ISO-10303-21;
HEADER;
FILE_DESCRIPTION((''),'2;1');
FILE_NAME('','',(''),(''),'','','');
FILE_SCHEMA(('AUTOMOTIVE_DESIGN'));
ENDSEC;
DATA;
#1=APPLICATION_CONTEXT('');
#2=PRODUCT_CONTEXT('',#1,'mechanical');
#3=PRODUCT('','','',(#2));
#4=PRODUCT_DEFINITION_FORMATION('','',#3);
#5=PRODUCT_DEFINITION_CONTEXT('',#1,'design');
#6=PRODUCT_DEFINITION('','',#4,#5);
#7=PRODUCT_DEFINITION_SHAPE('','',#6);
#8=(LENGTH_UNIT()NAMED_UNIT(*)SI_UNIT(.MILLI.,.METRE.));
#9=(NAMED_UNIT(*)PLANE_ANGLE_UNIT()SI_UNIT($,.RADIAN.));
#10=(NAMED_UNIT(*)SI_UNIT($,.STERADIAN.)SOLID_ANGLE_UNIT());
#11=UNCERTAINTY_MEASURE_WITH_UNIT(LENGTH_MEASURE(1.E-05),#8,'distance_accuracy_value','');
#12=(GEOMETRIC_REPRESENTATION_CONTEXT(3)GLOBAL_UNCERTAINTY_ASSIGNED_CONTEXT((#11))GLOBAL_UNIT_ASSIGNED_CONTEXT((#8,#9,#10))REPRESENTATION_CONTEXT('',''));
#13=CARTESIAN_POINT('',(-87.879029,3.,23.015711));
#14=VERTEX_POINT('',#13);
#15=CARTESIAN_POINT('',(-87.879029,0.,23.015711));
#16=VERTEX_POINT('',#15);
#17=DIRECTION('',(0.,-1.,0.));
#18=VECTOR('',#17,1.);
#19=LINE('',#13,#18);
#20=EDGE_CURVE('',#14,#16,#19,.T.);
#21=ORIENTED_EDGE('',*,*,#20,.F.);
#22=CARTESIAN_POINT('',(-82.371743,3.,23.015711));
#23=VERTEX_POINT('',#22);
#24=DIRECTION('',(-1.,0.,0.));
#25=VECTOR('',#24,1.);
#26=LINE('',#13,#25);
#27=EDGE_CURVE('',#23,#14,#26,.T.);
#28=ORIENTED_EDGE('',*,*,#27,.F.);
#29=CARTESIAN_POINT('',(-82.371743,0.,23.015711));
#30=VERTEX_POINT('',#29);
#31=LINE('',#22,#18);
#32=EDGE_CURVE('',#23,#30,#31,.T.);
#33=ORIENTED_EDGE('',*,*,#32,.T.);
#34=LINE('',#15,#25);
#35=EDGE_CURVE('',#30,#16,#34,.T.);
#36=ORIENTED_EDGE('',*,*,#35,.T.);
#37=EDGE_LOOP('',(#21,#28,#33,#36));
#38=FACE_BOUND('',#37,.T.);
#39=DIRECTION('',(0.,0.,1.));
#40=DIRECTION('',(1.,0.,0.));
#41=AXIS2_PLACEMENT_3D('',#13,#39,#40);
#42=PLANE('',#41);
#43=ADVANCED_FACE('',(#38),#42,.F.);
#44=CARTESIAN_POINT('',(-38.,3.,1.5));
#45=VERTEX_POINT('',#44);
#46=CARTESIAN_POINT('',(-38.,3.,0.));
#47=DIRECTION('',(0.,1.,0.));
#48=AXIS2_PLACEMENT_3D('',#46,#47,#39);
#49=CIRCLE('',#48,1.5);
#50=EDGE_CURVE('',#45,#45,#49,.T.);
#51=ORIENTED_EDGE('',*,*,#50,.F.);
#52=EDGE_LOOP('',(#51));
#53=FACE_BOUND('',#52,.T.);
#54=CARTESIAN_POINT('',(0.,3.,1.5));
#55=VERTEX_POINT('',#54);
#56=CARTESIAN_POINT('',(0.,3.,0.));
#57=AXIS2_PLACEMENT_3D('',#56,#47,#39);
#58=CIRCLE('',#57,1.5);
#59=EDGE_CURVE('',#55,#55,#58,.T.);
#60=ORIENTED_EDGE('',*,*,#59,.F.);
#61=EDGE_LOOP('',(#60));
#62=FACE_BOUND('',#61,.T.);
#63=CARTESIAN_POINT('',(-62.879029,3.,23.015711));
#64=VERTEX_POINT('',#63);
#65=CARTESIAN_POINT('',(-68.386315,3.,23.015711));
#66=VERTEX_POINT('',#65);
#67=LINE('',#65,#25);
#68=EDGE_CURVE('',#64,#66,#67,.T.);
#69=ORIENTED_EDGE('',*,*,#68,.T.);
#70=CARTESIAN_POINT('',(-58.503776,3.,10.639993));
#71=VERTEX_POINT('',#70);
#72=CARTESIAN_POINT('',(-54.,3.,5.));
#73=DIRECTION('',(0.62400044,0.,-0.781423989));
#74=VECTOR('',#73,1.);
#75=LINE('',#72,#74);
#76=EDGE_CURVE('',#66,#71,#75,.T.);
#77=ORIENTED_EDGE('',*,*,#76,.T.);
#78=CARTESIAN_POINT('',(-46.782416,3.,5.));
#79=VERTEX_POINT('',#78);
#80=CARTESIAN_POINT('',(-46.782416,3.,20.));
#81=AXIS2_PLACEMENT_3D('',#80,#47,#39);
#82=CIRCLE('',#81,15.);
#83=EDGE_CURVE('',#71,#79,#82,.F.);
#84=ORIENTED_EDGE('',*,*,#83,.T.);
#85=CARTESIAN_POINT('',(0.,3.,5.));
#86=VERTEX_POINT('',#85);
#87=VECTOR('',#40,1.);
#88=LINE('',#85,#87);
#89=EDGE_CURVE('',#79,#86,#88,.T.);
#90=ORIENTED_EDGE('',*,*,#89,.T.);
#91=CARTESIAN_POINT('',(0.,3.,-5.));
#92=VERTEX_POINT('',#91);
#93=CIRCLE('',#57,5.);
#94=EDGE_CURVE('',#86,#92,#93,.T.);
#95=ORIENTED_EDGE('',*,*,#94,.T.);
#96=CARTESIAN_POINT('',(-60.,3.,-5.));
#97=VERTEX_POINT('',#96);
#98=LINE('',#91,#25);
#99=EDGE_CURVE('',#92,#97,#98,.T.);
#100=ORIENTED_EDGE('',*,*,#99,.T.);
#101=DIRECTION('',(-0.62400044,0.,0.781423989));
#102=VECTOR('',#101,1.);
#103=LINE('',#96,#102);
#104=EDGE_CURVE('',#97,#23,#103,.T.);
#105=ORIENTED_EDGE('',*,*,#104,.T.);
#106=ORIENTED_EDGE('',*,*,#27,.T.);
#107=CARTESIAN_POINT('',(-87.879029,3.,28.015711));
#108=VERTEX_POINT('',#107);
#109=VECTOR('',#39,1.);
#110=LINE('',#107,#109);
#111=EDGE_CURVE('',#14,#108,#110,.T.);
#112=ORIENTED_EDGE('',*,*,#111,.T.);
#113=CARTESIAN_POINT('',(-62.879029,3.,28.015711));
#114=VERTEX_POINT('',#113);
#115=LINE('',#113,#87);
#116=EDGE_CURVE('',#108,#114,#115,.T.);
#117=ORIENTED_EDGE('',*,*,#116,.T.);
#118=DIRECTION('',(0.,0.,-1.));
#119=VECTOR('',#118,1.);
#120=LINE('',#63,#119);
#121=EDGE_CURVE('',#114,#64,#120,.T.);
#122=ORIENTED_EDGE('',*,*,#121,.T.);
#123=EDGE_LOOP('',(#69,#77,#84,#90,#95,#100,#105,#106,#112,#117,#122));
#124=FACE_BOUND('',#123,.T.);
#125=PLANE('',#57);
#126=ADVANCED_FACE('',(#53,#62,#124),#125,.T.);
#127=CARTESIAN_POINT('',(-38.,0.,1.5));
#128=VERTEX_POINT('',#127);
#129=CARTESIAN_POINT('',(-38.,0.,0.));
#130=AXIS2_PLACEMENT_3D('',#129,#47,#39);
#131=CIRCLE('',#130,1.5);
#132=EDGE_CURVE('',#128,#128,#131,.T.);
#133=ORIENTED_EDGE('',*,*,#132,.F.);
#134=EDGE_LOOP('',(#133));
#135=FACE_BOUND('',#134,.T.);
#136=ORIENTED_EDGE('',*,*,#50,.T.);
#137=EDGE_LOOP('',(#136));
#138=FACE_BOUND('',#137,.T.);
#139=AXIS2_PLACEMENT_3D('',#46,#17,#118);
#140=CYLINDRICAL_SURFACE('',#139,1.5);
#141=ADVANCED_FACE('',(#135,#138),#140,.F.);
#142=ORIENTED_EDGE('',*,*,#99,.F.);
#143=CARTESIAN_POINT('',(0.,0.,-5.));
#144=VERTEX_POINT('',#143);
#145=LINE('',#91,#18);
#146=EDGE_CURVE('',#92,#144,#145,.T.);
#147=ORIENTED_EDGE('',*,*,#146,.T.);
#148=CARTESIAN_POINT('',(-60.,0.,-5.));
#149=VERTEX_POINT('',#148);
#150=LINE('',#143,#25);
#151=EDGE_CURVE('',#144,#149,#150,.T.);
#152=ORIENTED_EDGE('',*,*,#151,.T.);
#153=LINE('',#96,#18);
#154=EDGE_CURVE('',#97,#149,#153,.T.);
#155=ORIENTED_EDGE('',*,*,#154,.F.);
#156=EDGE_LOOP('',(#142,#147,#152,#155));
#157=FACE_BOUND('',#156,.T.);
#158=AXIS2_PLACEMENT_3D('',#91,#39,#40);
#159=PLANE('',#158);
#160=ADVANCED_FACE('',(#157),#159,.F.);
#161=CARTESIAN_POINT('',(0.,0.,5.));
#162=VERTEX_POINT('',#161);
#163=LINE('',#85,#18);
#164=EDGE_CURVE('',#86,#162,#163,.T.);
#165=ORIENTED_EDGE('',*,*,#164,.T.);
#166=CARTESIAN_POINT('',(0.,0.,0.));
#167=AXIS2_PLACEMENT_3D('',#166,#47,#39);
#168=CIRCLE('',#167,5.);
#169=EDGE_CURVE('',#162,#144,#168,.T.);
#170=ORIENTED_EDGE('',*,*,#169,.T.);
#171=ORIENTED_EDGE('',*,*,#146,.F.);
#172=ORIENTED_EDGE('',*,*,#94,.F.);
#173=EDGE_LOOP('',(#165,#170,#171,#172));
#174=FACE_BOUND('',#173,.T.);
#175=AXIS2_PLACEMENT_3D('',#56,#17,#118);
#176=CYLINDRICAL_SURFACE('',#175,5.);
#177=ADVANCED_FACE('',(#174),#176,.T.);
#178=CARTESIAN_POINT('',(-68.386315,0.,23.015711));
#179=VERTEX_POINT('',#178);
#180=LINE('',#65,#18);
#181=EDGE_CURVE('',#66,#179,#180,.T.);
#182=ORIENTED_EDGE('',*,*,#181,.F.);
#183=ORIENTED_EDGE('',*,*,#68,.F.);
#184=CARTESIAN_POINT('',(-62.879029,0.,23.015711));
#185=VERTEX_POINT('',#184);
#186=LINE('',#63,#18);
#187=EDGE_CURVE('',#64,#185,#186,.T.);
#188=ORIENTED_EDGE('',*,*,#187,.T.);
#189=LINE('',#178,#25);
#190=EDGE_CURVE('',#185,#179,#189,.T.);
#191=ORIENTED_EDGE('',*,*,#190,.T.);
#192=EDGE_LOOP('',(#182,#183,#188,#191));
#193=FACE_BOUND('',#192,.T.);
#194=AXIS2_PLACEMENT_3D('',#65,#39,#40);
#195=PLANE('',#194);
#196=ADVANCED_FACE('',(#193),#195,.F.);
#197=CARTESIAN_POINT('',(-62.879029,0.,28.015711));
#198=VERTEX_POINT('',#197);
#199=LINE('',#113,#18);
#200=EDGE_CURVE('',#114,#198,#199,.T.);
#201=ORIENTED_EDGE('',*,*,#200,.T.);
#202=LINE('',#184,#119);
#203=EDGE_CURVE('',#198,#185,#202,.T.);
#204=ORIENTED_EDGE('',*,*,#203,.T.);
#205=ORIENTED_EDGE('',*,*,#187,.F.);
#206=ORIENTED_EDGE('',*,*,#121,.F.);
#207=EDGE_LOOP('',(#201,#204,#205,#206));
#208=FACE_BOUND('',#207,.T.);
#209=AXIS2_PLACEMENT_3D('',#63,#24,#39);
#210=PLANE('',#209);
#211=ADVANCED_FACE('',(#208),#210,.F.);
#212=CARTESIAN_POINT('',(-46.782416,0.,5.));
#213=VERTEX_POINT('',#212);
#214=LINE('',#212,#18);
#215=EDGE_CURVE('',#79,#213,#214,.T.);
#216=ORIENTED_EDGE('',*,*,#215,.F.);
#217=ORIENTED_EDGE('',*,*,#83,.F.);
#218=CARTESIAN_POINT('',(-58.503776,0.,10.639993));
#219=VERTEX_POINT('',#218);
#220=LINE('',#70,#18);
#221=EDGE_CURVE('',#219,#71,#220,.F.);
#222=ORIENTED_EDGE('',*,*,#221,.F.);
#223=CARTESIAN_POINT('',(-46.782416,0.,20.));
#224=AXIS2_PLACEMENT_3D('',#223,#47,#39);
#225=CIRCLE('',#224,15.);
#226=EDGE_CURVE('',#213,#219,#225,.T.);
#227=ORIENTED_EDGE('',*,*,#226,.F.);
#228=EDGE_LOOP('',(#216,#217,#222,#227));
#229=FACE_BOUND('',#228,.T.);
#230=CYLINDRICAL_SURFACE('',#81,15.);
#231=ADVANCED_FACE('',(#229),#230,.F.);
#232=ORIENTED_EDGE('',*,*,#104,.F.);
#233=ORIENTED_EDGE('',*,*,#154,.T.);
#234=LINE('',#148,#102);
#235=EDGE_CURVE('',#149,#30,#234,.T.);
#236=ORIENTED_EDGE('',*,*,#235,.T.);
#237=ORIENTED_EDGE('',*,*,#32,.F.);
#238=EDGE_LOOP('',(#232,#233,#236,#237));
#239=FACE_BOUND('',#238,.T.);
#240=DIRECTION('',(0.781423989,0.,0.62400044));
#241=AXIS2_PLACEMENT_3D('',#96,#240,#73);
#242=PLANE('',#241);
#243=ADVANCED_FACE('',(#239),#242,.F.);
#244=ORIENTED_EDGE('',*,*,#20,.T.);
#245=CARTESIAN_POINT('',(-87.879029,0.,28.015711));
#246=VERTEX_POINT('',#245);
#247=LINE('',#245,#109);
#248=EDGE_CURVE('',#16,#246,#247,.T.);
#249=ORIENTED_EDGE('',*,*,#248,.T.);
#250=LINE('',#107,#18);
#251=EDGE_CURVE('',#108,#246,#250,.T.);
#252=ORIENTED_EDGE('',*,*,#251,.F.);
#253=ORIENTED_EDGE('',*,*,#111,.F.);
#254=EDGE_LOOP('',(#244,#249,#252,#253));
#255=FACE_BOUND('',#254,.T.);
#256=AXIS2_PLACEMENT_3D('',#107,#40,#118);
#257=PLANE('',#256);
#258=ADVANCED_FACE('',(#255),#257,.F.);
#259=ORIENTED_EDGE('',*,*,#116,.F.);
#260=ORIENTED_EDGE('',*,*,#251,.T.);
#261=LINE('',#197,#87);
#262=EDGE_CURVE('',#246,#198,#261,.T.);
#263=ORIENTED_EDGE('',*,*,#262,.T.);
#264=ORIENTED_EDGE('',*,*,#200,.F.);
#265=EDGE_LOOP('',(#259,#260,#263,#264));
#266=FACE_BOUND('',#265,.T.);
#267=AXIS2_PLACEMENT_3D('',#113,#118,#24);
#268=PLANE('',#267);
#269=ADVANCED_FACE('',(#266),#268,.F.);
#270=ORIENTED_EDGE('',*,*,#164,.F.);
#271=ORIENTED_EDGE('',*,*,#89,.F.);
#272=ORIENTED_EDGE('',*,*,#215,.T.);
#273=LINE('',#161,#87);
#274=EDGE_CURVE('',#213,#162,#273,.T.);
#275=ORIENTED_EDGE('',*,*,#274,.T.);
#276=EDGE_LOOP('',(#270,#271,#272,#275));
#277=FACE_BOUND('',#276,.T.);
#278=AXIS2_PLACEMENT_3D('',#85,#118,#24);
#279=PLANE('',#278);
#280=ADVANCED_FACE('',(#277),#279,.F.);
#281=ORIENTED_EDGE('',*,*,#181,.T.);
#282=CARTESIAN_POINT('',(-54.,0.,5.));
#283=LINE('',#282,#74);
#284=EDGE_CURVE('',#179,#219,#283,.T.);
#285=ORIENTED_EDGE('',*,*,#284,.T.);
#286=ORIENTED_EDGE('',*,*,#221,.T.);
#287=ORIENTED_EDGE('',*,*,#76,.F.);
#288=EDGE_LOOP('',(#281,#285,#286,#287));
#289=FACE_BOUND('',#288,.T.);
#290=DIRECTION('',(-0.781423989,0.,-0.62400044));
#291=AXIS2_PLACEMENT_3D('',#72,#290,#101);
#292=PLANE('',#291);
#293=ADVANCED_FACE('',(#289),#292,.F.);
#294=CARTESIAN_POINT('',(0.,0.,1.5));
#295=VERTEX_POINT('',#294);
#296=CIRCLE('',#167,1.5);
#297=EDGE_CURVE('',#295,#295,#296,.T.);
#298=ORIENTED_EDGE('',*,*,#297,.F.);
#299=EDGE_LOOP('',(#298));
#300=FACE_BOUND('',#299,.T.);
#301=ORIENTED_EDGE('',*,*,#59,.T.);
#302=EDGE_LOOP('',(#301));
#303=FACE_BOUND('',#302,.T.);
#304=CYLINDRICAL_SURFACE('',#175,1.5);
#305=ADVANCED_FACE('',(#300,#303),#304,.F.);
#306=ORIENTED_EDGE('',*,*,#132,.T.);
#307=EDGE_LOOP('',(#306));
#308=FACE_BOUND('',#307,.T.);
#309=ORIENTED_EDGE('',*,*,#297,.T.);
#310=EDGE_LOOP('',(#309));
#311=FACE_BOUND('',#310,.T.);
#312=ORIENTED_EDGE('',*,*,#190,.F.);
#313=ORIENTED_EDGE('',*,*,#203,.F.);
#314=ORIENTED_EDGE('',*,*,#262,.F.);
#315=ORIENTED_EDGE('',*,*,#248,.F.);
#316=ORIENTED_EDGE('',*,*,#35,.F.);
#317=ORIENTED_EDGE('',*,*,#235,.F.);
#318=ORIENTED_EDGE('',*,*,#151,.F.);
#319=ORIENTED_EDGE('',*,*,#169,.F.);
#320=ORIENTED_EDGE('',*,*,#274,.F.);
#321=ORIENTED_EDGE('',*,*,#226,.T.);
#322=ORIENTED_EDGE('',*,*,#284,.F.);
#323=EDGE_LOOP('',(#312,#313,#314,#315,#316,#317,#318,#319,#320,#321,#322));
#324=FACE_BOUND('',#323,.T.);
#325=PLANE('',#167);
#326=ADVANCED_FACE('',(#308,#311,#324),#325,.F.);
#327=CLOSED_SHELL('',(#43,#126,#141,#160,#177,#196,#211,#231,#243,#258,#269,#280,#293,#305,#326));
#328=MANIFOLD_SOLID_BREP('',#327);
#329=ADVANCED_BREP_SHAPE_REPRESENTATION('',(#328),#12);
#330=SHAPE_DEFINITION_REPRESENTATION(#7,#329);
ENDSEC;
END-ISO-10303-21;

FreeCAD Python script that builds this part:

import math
import FreeCAD as App
import Part
import Sketcher
Q = App.Units.Quantity


def edges_at(feature, points):
    """Names of the edges that pass closest to the given points."""
    edges = feature.Shape.Edges
    near = lambda p: min(range(len(edges)), key=lambda i: edges[i].distToShape(Part.Vertex(*p))[0])
    return sorted({f"Edge{near(p) + 1}" for p in points})

doc = App.newDocument("Part")
body = doc.addObject("PartDesign::Body", "Body")

sketch1 = doc.addObject("Sketcher::SketchObject", "Sketch")
body.addObject(sketch1)
sketch1.AttachmentSupport = (doc.XZ_Plane, [""])
sketch1.MapMode = "FlatFace"
sketch1.addGeometry(Part.LineSegment(App.Vector(0, -5, 0), App.Vector(-60, -5, 0)), False)
sketch1.addGeometry(Part.LineSegment(App.Vector(-60, -5, 0), App.Vector(-82.4, 23, 0)), False)
sketch1.addGeometry(Part.LineSegment(App.Vector(-82.4, 23, 0), App.Vector(-87.9, 23, 0)), False)
sketch1.addGeometry(Part.LineSegment(App.Vector(-87.9, 23, 0), App.Vector(-87.9, 28, 0)), False)
sketch1.addGeometry(Part.LineSegment(App.Vector(-87.9, 28, 0), App.Vector(-62.9, 28, 0)), False)
sketch1.addGeometry(Part.LineSegment(App.Vector(-62.9, 28, 0), App.Vector(-62.9, 23, 0)), False)
sketch1.addGeometry(Part.LineSegment(App.Vector(-62.9, 23, 0), App.Vector(-68.4, 23, 0)), False)
sketch1.addGeometry(Part.LineSegment(App.Vector(-68.4, 23, 0), App.Vector(-54, 5, 0)), False)
sketch1.addGeometry(Part.LineSegment(App.Vector(-54, 5, 0), App.Vector(0, 5, 0)), False)
sketch1.addGeometry(Part.ArcOfCircle(Part.Circle(App.Vector(0, 0, 0), App.Vector(0, 0, 1), 5), math.radians(-90), math.radians(90)), False)
sketch1.addGeometry(Part.Circle(App.Vector(-38, 0, 0), App.Vector(0, 0, 1), 1.5), False)
sketch1.addGeometry(Part.Circle(App.Vector(0, 0, 0), App.Vector(0, 0, 1), 1.5), False)
sketch1.addConstraint(Sketcher.Constraint("Coincident", 0, 2, 1, 1))
sketch1.addConstraint(Sketcher.Constraint("Coincident", 1, 2, 2, 1))
sketch1.addConstraint(Sketcher.Constraint("Coincident", 2, 2, 3, 1))
sketch1.addConstraint(Sketcher.Constraint("Coincident", 3, 2, 4, 1))
sketch1.addConstraint(Sketcher.Constraint("Coincident", 4, 2, 5, 1))
sketch1.addConstraint(Sketcher.Constraint("Coincident", 5, 2, 6, 1))
sketch1.addConstraint(Sketcher.Constraint("Coincident", 6, 2, 7, 1))
sketch1.addConstraint(Sketcher.Constraint("Coincident", 7, 2, 8, 1))
sketch1.addConstraint(Sketcher.Constraint("Tangent", 8, 2, 9, 2))
sketch1.addConstraint(Sketcher.Constraint("Tangent", 9, 1, 0, 1))
sketch1.addConstraint(Sketcher.Constraint("Horizontal", 0))
sketch1.addConstraint(Sketcher.Constraint("Horizontal", 2))
sketch1.addConstraint(Sketcher.Constraint("Vertical", 3))
sketch1.addConstraint(Sketcher.Constraint("Horizontal", 4))
sketch1.addConstraint(Sketcher.Constraint("Vertical", 5))
sketch1.addConstraint(Sketcher.Constraint("Horizontal", 6))
sketch1.addConstraint(Sketcher.Constraint("Horizontal", 8))
sketch1.addConstraint(Sketcher.Constraint("Coincident", 9, 3, -1, 1))
sketch1.addConstraint(Sketcher.Constraint("Coincident", 11, 3, -1, 1))
sketch1.addConstraint(Sketcher.Constraint("Equal", 10, 11))
sketch1.addConstraint(Sketcher.Constraint("PointOnObject", 10, 3, -1))
sketch1.addConstraint(Sketcher.Constraint("Parallel", 1, 7))
sketch1.addConstraint(Sketcher.Constraint("Horizontal", 2, 2, 5, 2))
sketch1.addConstraint(Sketcher.Constraint("Equal", 2, 6))
sketch1.addConstraint(Sketcher.Constraint("Diameter", 10, Q("3 mm")))
sketch1.addConstraint(Sketcher.Constraint("Radius", 9, Q("5 mm")))
sketch1.addConstraint(Sketcher.Constraint("DistanceX", 0, 2, 0, 1, Q("60 mm")))
sketch1.addConstraint(Sketcher.Constraint("DistanceX", 4, 1, 4, 2, Q("25 mm")))
sketch1.addConstraint(Sketcher.Constraint("DistanceX", 8, 1, 8, 2, Q("54 mm")))
sketch1.addConstraint(Sketcher.Constraint("DistanceY", 3, 1, 3, 2, Q("5 mm")))
sketch1.addConstraint(Sketcher.Constraint("DistanceX", 10, 3, -1, 1, Q("38 mm")))
sketch1.addConstraint(Sketcher.Constraint("DistanceX", 2, 2, 2, 1, Q("5.507286 mm")))
sketch1.addConstraint(Sketcher.Constraint("DistanceY", -1, 1, 1, 2, Q("23.015711 mm")))
pad1 = doc.addObject("PartDesign::Pad", "Pad")
body.addObject(pad1)
pad1.Profile = sketch1
pad1.Length = 3
pad1.Reversed = True
doc.recompute()

fillet = doc.addObject("PartDesign::Fillet", "Fillet")
body.addObject(fillet)
fillet.Base = (pad1, edges_at(pad1, [(-54, 1.5, 5)]))
fillet.Radius = 15

doc.recompute()
